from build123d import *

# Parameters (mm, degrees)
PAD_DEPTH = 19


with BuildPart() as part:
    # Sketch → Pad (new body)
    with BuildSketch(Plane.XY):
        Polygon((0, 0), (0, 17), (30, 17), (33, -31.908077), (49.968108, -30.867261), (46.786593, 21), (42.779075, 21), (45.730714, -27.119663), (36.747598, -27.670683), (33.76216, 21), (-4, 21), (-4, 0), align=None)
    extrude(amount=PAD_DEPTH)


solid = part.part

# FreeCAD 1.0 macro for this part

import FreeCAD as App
import Part
import Sketcher

V = App.Vector

doc = App.newDocument("Part")
body = doc.addObject("PartDesign::Body", "Body")

# Sketch on XY plane
sketch1 = body.newObject("Sketcher::SketchObject", "Sketch")
sketch1.AttachmentSupport = (doc.getObject("XY_Plane"), [""])
sketch1.MapMode = "FlatFace"
sketch1.addGeometry([
    Part.LineSegment(V(0, 0, 0), V(0, 17, 0)),  # 0
    Part.LineSegment(V(0, 17, 0), V(30, 17, 0)),  # 1
    Part.LineSegment(V(30, 17, 0), V(33, -31.9, 0)),  # 2
    Part.LineSegment(V(33, -31.9, 0), V(50, -30.9, 0)),  # 3
    Part.LineSegment(V(50, -30.9, 0), V(46.8, 21, 0)),  # 4
    Part.LineSegment(V(46.8, 21, 0), V(42.8, 21, 0)),  # 5
    Part.LineSegment(V(42.8, 21, 0), V(45.7, -27.1, 0)),  # 6
    Part.LineSegment(V(45.7, -27.1, 0), V(36.7, -27.7, 0)),  # 7
    Part.LineSegment(V(36.7, -27.7, 0), V(33.8, 21, 0)),  # 8
    Part.LineSegment(V(33.8, 21, 0), V(-4, 21, 0)),  # 9
    Part.LineSegment(V(-4, 21, 0), V(-4, 0, 0)),  # 10
    Part.LineSegment(V(-4, 0, 0), V(0, 0, 0)),  # 11
], False)
sketch1.addConstraint([
    Sketcher.Constraint("Coincident", 0, 2, 1, 1),
    Sketcher.Constraint("Coincident", 1, 2, 2, 1),
    Sketcher.Constraint("Coincident", 2, 2, 3, 1),
    Sketcher.Constraint("Coincident", 3, 2, 4, 1),
    Sketcher.Constraint("Coincident", 4, 2, 5, 1),
    Sketcher.Constraint("Coincident", 5, 2, 6, 1),
    Sketcher.Constraint("Coincident", 6, 2, 7, 1),
    Sketcher.Constraint("Coincident", 7, 2, 8, 1),
    Sketcher.Constraint("Coincident", 8, 2, 9, 1),
    Sketcher.Constraint("Coincident", 9, 2, 10, 1),
    Sketcher.Constraint("Coincident", 10, 2, 11, 1),
    Sketcher.Constraint("Coincident", 11, 2, 0, 1),
    Sketcher.Constraint("Vertical", 0),
    Sketcher.Constraint("Horizontal", 1),
    Sketcher.Constraint("Horizontal", 5),
    Sketcher.Constraint("Horizontal", 9),
    Sketcher.Constraint("Vertical", 10),
    Sketcher.Constraint("Horizontal", 11),
    Sketcher.Constraint("Coincident", 11, 2, -1, 1),
    Sketcher.Constraint("Perpendicular", 2, 3),
    Sketcher.Constraint("Perpendicular", 3, 4),
    Sketcher.Constraint("Parallel", 4, 6),
    Sketcher.Constraint("Perpendicular", 6, 7),
    Sketcher.Constraint("Perpendicular", 7, 8),
    Sketcher.Constraint("Horizontal", 5, 2, 8, 2),
    Sketcher.Constraint("DistanceX", 1, 1, 1, 2, 30.0),
    Sketcher.Constraint("DistanceX", 11, 1, 11, 2, 4.0),
    Sketcher.Constraint("DistanceY", 0, 1, 0, 2, 17.0),
    Sketcher.Constraint("DistanceY", 10, 2, 10, 1, 21.0),
    Sketcher.Constraint("Distance", 2, 49.0),
    Sketcher.Constraint("Distance", 3, 17.0),
    Sketcher.Constraint("Distance", 7, 9.0),
    Sketcher.Constraint("DistanceX", -1, 1, 2, 2, 33.0),
    Sketcher.Constraint("DistanceX", 5, 2, 5, 1, 4.007518),
    Sketcher.Constraint("DistanceX", -1, 1, 7, 2, 36.747598),
])
pad1 = body.newObject("PartDesign::Pad", "Pad")
pad1.Profile = sketch1
pad1.Length = 19

doc.recompute()
